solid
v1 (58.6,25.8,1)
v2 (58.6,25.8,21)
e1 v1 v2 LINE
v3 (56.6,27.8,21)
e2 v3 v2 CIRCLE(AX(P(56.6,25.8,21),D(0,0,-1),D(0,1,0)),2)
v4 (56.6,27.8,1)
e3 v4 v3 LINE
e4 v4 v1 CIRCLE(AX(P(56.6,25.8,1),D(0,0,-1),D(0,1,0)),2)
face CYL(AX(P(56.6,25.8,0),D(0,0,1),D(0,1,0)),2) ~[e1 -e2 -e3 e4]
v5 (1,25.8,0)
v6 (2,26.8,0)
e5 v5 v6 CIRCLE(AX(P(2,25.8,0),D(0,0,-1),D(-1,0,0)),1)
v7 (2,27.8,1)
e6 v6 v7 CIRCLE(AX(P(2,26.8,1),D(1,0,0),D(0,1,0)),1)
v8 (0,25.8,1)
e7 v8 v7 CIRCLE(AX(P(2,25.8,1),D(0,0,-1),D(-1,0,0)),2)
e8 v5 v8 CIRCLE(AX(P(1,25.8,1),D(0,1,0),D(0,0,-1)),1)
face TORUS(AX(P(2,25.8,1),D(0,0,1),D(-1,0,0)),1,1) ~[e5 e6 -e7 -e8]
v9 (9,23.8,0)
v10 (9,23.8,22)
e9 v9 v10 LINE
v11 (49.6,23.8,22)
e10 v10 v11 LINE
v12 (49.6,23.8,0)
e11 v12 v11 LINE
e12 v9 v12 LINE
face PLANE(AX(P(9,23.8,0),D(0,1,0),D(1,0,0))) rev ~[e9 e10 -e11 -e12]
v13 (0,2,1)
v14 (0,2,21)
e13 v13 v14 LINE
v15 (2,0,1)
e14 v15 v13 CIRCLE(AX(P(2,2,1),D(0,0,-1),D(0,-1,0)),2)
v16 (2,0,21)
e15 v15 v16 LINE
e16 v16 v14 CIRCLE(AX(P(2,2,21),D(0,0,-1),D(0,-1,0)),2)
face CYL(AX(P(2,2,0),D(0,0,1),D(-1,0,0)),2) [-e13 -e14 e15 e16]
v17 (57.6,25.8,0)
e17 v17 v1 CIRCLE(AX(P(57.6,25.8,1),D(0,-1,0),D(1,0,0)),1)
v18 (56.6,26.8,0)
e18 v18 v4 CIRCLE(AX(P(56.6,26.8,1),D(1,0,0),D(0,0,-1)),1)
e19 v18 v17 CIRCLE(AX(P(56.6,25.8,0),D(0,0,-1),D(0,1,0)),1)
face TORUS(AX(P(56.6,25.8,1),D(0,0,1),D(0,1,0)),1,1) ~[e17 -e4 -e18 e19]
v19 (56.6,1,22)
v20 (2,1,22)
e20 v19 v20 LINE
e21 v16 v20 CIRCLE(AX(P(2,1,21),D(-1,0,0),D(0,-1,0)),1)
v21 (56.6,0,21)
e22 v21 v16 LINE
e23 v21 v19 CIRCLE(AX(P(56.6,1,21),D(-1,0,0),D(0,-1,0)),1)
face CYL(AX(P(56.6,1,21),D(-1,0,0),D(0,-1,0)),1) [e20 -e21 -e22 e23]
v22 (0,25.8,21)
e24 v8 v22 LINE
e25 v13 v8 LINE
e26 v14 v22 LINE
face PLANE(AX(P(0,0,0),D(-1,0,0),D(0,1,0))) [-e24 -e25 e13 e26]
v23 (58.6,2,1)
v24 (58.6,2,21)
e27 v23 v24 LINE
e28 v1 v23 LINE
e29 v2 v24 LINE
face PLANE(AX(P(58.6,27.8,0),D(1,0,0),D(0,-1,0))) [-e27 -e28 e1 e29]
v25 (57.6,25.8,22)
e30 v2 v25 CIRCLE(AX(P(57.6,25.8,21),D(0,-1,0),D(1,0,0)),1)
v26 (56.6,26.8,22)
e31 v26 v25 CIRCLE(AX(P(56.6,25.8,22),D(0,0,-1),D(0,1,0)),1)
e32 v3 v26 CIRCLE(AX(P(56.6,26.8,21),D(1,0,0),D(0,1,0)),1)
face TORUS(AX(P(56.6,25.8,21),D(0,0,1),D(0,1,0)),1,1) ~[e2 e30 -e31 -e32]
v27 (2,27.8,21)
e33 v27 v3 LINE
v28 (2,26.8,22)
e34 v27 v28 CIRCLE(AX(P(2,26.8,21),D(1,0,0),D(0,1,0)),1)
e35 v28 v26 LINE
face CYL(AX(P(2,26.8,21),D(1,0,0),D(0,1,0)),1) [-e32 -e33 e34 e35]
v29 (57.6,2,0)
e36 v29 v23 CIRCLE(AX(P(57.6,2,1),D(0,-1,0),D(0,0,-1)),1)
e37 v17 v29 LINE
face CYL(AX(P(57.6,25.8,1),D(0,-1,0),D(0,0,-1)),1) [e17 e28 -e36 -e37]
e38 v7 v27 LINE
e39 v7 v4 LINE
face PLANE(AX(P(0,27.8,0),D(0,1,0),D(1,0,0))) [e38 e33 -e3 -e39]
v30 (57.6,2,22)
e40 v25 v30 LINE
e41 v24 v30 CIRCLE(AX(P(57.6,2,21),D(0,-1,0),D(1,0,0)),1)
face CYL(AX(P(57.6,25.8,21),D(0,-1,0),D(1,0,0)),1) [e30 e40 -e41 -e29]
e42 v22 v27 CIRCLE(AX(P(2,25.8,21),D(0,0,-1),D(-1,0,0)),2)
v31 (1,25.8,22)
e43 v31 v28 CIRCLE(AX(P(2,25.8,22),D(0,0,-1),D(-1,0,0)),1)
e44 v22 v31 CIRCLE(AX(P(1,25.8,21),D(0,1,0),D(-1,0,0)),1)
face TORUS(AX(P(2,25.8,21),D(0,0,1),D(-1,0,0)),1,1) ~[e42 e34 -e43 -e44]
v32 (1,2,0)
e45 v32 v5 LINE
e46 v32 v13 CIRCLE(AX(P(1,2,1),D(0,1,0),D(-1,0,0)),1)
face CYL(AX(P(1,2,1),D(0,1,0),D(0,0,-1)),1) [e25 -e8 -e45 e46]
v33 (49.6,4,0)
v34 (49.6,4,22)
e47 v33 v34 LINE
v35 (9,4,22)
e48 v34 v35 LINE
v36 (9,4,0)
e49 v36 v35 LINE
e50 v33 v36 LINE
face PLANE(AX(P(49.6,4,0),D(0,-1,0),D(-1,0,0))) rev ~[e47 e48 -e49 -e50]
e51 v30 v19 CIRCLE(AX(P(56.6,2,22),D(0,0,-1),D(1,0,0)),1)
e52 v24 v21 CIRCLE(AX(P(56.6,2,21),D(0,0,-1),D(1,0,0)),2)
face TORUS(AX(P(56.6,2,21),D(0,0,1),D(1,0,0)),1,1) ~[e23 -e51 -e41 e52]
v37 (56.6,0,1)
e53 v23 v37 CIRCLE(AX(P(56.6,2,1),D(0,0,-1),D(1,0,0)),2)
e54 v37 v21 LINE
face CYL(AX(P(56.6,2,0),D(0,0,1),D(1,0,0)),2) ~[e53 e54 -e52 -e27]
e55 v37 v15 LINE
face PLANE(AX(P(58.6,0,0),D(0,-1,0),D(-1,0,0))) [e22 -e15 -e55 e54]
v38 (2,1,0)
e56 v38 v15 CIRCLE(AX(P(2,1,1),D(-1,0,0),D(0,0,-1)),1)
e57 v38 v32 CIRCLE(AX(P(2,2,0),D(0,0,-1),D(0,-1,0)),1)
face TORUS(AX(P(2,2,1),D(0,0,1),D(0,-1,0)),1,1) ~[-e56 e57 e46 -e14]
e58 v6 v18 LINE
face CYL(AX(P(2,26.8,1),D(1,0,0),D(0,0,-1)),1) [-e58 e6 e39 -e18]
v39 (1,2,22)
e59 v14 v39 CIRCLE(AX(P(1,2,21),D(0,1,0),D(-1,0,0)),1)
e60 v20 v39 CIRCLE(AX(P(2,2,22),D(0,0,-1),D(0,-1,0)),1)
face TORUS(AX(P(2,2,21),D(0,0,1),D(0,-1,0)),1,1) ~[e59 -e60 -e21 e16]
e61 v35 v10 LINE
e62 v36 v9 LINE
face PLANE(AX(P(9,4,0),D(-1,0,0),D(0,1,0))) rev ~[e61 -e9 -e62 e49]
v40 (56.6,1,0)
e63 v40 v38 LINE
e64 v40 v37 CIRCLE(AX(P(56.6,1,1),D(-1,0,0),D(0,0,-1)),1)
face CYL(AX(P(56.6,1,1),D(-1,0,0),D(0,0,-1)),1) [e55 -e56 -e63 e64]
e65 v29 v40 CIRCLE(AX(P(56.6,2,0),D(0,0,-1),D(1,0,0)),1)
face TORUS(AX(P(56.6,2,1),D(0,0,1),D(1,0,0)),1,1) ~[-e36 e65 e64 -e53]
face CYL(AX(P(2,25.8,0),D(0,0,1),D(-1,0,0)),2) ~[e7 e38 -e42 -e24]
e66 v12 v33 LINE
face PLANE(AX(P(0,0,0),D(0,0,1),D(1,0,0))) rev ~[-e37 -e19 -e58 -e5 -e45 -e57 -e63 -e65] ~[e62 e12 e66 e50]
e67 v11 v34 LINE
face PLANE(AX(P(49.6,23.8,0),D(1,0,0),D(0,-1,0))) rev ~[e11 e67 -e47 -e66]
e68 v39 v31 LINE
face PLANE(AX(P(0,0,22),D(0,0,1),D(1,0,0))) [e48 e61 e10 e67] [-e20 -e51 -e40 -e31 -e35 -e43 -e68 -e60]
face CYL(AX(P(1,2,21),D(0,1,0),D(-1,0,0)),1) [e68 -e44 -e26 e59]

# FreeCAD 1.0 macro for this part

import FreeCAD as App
import Part
import Sketcher
Q = App.Units.Quantity


def edges_at(feature, points):
    """Names of the edges that pass closest to the given points."""
    edges = feature.Shape.Edges
    near = lambda p: min(range(len(edges)), key=lambda i: edges[i].distToShape(Part.Vertex(*p))[0])
    return sorted({f"Edge{near(p) + 1}" for p in points})

doc = App.newDocument("Part")
body = doc.addObject("PartDesign::Body", "Body")

sketch1 = body.newObject("Sketcher::SketchObject", "Sketch")
sketch1.AttachmentSupport = (doc.getObject("XY_Plane"), [""])
sketch1.MapMode = "FlatFace"
sketch1.addGeometry(Part.LineSegment(App.Vector(0, 28, 0), App.Vector(0, 0, 0)), False)
sketch1.addGeometry(Part.LineSegment(App.Vector(0, 0, 0), App.Vector(59, 0, 0)), False)
sketch1.addGeometry(Part.LineSegment(App.Vector(59, 0, 0), App.Vector(59, 28, 0)), False)
sketch1.addGeometry(Part.LineSegment(App.Vector(59, 28, 0), App.Vector(0, 28, 0)), False)
sketch1.addGeometry(Part.LineSegment(App.Vector(9, 4, 0), App.Vector(9, 24, 0)), False)
sketch1.addGeometry(Part.LineSegment(App.Vector(9, 24, 0), App.Vector(50, 24, 0)), False)
sketch1.addGeometry(Part.LineSegment(App.Vector(50, 24, 0), App.Vector(50, 4, 0)), False)
sketch1.addGeometry(Part.LineSegment(App.Vector(50, 4, 0), App.Vector(9, 4, 0)), False)
sketch1.addConstraint(Sketcher.Constraint("Coincident", 0, 2, 1, 1))
sketch1.addConstraint(Sketcher.Constraint("Coincident", 1, 2, 2, 1))
sketch1.addConstraint(Sketcher.Constraint("Coincident", 2, 2, 3, 1))
sketch1.addConstraint(Sketcher.Constraint("Coincident", 3, 2, 0, 1))
sketch1.addConstraint(Sketcher.Constraint("Coincident", 4, 2, 5, 1))
sketch1.addConstraint(Sketcher.Constraint("Coincident", 5, 2, 6, 1))
sketch1.addConstraint(Sketcher.Constraint("Coincident", 6, 2, 7, 1))
sketch1.addConstraint(Sketcher.Constraint("Coincident", 7, 2, 4, 1))
sketch1.addConstraint(Sketcher.Constraint("Vertical", 0))
sketch1.addConstraint(Sketcher.Constraint("Horizontal", 1))
sketch1.addConstraint(Sketcher.Constraint("Vertical", 2))
sketch1.addConstraint(Sketcher.Constraint("Horizontal", 3))
sketch1.addConstraint(Sketcher.Constraint("Vertical", 4))
sketch1.addConstraint(Sketcher.Constraint("Horizontal", 5))
sketch1.addConstraint(Sketcher.Constraint("Vertical", 6))
sketch1.addConstraint(Sketcher.Constraint("Horizontal", 7))
sketch1.addConstraint(Sketcher.Constraint("Coincident", 0, 2, -1, 1))
sketch1.addConstraint(Sketcher.Constraint("DistanceX", 1, 1, 1, 2, Q("58.6 mm")))
sketch1.addConstraint(Sketcher.Constraint("DistanceX", 5, 1, 5, 2, Q("40.6 mm")))
sketch1.addConstraint(Sketcher.Constraint("DistanceY", 0, 2, 0, 1, Q("27.8 mm")))
sketch1.addConstraint(Sketcher.Constraint("DistanceY", 4, 1, 4, 2, Q("19.8 mm")))
sketch1.addConstraint(Sketcher.Constraint("DistanceX", -1, 1, 4, 2, Q("9 mm")))
sketch1.addConstraint(Sketcher.Constraint("DistanceY", -1, 1, 6, 2, Q("4 mm")))
pad1 = body.newObject("PartDesign::Pad", "Pad")
pad1.Profile = sketch1
pad1.Length = 22
doc.recompute()

fillet = body.newObject("PartDesign::Fillet", "Fillet")
fillet.Base = (pad1, edges_at(pad1, [
    (0, 0, 11),
    (0, 27.8, 11),
    (58.6, 27.8, 11),
    (58.6, 0, 11),
]))
fillet.Radius = 2
doc.recompute()

fillet2 = body.newObject("PartDesign::Fillet", "Fillet001")
fillet2.Base = (fillet, edges_at(fillet, [
    (0, 13.9, 22),
    (0.586, 27.214, 22),
    (29.3, 27.8, 22),
    (58.014, 27.214, 22),
    (58.6, 13.9, 22),
    (58.014, 0.586, 22),
    (29.3, 0, 22),
    (0.586, 0.586, 22),
    (29.3, 0, 0),
    (58.014, 0.586, 0),
    (58.6, 13.9, 0),
    (58.014, 27.214, 0),
    (29.3, 27.8, 0),
    (0.586, 27.214, 0),
    (0, 13.9, 0),
    (0.586, 0.586, 0),
]))
fillet2.Radius = 1

doc.recompute()
